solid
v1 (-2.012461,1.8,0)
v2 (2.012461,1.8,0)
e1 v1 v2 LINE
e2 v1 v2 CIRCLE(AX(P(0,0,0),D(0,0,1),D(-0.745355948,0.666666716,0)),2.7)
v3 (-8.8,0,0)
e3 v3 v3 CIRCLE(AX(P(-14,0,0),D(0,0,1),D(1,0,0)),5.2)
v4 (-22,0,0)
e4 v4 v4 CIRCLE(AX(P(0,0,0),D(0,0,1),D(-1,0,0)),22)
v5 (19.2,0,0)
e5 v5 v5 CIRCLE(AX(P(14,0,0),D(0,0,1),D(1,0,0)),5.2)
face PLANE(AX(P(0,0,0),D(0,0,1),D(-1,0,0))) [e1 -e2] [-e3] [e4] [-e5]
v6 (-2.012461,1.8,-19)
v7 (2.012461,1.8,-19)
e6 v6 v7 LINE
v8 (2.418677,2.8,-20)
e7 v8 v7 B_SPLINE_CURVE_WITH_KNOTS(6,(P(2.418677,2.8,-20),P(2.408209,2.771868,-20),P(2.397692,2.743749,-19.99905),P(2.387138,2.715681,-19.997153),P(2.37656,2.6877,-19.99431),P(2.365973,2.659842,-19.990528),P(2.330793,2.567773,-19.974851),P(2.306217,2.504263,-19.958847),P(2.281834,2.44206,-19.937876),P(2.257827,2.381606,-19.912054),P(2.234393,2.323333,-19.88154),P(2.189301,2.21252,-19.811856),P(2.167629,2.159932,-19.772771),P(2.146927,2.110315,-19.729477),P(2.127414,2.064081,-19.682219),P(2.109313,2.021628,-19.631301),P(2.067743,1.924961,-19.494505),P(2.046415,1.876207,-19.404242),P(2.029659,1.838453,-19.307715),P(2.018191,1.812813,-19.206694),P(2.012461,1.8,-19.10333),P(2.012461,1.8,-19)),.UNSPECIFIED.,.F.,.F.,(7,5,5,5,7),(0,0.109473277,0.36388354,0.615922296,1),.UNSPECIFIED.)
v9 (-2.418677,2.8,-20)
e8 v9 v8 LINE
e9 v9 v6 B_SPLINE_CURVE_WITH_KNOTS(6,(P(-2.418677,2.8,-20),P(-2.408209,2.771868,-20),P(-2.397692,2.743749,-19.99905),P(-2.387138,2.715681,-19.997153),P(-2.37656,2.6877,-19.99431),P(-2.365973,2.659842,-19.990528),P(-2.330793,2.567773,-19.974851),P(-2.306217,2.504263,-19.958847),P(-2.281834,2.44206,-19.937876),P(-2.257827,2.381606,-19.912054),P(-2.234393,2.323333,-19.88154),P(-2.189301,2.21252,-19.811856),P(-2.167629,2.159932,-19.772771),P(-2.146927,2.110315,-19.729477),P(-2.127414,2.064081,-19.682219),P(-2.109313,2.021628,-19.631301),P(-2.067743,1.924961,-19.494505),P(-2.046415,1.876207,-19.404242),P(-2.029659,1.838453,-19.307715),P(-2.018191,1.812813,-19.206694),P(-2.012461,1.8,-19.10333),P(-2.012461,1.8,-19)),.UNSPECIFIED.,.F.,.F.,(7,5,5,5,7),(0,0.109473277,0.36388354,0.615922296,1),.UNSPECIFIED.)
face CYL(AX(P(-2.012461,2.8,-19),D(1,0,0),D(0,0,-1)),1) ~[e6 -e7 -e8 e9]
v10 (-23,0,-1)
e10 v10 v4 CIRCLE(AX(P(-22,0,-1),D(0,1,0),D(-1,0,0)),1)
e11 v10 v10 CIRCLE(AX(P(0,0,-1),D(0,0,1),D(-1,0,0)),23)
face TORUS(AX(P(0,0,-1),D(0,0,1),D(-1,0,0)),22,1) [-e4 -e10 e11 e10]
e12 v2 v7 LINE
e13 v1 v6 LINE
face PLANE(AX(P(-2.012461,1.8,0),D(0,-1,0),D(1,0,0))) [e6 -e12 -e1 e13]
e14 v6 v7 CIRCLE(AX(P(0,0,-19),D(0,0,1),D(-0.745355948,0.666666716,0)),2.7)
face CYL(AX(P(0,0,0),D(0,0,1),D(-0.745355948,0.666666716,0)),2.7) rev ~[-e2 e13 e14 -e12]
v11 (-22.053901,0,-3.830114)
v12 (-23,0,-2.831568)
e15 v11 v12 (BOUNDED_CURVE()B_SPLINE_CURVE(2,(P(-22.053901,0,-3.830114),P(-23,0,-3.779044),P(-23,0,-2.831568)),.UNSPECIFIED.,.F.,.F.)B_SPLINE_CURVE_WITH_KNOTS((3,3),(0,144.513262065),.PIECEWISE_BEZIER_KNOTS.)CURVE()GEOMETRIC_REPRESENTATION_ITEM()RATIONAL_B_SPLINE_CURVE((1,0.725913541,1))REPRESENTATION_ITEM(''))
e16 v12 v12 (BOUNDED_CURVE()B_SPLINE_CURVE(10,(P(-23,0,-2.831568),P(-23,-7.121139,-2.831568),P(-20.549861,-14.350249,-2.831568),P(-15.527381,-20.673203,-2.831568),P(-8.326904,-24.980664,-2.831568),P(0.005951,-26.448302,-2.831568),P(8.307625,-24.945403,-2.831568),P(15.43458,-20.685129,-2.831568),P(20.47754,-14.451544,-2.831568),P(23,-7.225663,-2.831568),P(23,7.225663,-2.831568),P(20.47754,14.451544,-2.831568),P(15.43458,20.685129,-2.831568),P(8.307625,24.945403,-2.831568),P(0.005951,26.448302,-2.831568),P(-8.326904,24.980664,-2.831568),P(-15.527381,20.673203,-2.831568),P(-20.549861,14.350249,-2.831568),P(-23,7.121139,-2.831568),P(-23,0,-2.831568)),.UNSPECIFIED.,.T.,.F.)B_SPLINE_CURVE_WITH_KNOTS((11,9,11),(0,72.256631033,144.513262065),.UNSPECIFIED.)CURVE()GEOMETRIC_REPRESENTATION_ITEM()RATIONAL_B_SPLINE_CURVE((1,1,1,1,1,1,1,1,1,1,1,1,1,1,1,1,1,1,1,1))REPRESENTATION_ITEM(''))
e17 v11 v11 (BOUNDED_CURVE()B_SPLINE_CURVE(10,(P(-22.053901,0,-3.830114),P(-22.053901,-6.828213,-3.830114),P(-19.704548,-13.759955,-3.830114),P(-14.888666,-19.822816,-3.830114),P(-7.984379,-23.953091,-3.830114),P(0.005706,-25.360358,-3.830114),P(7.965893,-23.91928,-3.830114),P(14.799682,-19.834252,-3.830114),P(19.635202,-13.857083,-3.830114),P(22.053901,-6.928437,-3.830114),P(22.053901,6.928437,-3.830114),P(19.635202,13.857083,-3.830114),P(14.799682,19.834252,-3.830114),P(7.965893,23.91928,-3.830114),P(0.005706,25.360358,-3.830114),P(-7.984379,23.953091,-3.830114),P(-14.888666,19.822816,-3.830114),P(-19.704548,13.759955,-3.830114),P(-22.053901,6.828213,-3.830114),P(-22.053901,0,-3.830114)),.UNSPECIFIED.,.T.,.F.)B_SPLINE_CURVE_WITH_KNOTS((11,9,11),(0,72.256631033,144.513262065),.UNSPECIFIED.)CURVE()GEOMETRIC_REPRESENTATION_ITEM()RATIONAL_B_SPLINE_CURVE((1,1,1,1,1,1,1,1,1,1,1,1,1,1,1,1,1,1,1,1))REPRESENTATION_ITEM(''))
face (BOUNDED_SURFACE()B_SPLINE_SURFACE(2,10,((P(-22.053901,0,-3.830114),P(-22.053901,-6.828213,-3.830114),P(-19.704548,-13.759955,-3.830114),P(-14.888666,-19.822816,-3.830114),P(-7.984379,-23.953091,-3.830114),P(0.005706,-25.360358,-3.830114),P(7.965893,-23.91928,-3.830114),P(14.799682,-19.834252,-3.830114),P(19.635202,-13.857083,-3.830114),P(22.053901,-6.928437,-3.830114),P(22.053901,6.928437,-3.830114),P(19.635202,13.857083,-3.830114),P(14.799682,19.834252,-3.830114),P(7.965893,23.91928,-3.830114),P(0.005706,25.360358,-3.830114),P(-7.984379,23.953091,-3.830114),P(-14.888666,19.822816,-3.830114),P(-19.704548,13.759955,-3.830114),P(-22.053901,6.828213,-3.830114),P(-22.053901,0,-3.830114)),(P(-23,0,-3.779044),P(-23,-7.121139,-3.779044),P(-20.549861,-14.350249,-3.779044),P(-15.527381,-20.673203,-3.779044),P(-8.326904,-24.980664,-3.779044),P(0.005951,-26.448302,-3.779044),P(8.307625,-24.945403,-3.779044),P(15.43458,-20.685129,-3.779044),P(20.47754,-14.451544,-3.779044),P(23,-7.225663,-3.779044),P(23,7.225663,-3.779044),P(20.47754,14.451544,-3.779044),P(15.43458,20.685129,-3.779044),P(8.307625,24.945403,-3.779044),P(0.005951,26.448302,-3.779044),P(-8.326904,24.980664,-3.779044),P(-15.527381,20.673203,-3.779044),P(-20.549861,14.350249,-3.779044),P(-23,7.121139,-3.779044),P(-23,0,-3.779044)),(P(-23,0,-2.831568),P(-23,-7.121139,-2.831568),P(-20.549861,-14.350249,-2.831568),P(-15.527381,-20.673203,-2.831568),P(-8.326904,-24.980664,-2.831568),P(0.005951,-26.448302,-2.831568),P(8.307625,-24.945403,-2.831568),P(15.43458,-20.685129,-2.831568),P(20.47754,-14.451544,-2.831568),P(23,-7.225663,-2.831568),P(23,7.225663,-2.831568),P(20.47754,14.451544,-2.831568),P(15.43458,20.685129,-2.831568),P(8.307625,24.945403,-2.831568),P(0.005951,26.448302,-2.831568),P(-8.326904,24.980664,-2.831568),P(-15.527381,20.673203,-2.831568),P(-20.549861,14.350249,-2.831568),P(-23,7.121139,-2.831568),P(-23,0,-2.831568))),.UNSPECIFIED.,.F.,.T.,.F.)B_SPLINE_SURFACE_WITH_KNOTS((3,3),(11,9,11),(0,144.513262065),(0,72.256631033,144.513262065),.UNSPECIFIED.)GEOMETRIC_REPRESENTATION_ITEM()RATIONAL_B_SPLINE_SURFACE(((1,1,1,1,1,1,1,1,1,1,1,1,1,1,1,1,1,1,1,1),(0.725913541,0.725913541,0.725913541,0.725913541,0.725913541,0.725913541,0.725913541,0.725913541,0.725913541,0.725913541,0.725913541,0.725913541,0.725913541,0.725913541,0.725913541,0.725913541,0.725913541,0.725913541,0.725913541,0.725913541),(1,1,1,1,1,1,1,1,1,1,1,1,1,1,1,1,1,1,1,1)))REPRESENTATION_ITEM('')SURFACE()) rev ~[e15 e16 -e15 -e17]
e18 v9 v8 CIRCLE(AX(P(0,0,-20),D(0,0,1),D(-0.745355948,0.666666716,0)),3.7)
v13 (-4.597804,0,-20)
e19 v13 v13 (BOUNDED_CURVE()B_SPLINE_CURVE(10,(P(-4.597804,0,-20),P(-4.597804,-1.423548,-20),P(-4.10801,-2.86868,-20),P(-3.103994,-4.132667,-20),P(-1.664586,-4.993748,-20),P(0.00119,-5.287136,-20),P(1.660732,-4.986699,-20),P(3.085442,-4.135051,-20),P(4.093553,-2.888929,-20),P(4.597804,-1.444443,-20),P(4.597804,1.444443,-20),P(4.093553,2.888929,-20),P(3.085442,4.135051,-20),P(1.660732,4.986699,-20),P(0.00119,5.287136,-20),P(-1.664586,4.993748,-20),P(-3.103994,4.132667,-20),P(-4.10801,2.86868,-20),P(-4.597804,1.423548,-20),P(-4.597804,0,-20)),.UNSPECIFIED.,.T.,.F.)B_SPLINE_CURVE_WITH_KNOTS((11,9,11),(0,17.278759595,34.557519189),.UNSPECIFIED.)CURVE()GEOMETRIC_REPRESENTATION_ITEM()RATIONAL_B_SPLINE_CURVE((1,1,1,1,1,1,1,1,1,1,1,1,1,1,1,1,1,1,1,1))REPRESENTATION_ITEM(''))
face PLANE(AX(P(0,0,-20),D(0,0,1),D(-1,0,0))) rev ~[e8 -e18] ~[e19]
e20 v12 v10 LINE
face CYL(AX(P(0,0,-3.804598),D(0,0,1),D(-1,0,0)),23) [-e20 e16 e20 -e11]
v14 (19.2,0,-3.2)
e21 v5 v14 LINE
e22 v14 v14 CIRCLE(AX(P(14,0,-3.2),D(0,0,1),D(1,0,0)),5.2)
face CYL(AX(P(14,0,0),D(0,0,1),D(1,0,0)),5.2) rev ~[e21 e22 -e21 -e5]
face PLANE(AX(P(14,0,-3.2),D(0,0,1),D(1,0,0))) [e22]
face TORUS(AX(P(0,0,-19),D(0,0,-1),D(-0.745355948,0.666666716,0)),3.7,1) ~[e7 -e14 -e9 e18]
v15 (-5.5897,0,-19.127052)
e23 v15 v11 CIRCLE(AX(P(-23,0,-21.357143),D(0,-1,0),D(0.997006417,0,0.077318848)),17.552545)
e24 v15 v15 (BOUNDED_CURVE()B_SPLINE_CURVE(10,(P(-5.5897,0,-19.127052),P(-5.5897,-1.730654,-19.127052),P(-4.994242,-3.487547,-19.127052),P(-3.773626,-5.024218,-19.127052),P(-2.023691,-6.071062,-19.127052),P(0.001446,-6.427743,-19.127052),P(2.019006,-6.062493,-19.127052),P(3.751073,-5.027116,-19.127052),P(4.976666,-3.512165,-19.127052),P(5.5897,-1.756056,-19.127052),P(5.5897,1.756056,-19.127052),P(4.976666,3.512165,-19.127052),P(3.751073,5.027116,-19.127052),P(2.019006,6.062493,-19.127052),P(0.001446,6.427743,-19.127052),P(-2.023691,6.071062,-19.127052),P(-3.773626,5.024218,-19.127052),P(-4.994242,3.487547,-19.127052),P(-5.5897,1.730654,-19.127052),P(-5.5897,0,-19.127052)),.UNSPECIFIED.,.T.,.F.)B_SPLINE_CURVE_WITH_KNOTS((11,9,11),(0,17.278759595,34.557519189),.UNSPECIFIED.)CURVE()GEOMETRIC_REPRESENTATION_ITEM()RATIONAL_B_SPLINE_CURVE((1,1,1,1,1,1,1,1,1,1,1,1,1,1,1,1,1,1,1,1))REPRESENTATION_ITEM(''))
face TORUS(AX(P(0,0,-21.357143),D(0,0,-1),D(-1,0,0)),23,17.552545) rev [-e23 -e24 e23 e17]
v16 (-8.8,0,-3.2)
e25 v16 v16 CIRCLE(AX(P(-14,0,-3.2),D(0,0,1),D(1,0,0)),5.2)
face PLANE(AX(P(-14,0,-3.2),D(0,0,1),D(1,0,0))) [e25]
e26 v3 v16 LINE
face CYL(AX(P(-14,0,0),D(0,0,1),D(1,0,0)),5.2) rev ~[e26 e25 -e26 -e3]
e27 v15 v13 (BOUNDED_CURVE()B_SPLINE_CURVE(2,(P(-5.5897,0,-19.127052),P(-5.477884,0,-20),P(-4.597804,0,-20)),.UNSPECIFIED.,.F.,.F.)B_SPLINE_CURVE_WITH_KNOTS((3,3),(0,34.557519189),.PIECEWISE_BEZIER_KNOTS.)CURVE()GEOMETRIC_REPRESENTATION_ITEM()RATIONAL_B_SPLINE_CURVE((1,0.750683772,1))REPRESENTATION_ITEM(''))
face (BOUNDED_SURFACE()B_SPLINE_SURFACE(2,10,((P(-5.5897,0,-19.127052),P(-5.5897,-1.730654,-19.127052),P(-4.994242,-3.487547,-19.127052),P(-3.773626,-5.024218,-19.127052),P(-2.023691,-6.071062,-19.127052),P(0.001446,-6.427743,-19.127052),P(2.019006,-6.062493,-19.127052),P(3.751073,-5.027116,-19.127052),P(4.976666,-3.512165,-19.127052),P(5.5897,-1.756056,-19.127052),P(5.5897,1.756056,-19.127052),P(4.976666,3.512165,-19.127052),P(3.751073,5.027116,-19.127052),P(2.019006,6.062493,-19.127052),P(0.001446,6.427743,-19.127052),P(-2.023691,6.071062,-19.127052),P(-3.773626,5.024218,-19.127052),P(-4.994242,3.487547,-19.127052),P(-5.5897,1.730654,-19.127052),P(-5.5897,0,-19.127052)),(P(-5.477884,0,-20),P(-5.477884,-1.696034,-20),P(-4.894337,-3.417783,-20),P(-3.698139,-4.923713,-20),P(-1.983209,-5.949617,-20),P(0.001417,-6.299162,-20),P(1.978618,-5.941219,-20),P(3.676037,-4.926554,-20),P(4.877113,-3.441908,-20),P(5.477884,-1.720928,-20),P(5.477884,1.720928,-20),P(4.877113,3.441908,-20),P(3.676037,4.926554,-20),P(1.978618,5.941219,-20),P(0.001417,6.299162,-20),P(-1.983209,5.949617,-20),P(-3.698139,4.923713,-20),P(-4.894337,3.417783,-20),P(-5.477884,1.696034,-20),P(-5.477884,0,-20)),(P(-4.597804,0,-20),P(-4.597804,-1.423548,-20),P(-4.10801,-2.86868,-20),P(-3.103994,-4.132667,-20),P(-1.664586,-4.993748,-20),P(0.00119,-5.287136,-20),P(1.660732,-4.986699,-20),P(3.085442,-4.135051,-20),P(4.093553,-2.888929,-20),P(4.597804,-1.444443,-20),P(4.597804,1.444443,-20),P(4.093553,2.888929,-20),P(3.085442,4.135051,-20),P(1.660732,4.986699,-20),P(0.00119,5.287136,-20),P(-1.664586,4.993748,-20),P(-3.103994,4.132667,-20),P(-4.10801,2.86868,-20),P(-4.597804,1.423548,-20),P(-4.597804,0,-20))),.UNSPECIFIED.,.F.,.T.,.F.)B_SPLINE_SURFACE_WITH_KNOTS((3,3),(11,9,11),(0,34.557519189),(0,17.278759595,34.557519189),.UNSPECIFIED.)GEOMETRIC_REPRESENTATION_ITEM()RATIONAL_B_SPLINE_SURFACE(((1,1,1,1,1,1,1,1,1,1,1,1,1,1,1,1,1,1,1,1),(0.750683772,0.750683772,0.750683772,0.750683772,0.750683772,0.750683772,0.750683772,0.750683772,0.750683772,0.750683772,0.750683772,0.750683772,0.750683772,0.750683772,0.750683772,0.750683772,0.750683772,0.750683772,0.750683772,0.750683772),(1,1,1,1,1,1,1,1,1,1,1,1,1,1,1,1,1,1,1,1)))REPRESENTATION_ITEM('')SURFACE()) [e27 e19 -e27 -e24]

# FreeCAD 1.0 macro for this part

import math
import FreeCAD as App
import Part
import Sketcher
from FreeCAD import Vector


def edges_at(feature, points):
    """Names of the edges that pass closest to the given points."""
    edges = feature.Shape.Edges
    near = lambda p: min(range(len(edges)), key=lambda i: edges[i].distToShape(Part.Vertex(*p))[0])
    return sorted({f"Edge{near(p) + 1}" for p in points})

doc = App.newDocument("Part")
body = doc.addObject("PartDesign::Body", "Body")

sketch1 = body.newObject("Sketcher::SketchObject", "Sketch")
sketch1.AttachmentSupport = (doc.getObject("XZ_Plane"), [""])
sketch1.MapMode = "FlatFace"
sketch1.addGeometry(Part.ArcOfCircle(Part.Circle(Vector(-23, -21.4, 0), Vector(0, 0, 1), 17.6), math.radians(4), math.radians(90)), False)
sketch1.addGeometry(Part.LineSegment(Vector(-5.5, -20, 0), Vector(0, -20, 0)), False)
sketch1.addGeometry(Part.LineSegment(Vector(0, -20, 0), Vector(0, 0, 0)), False)
sketch1.addGeometry(Part.LineSegment(Vector(0, 0, 0), Vector(-23, 0, 0)), False)
sketch1.addGeometry(Part.LineSegment(Vector(-23, 0, 0), Vector(-23, -3.8, 0)), False)
sketch1.addConstraint(Sketcher.Constraint("Coincident", 0, 1, 1, 1))
sketch1.addConstraint(Sketcher.Constraint("Coincident", 1, 2, 2, 1))
sketch1.addConstraint(Sketcher.Constraint("Coincident", 2, 2, 3, 1))
sketch1.addConstraint(Sketcher.Constraint("Coincident", 3, 2, 4, 1))
sketch1.addConstraint(Sketcher.Constraint("Coincident", 4, 2, 0, 2))
sketch1.addConstraint(Sketcher.Constraint("Horizontal", 1))
sketch1.addConstraint(Sketcher.Constraint("Vertical", 2))
sketch1.addConstraint(Sketcher.Constraint("Horizontal", 3))
sketch1.addConstraint(Sketcher.Constraint("Vertical", 4))
sketch1.addConstraint(Sketcher.Constraint("Coincident", 2, 2, -1, 1))
sketch1.addConstraint(Sketcher.Constraint("Vertical", 0, 3, 3, 2))
sketch1.addConstraint(Sketcher.Constraint("DistanceX", 3, 2, 3, 1, 23.0))
sketch1.addConstraint(Sketcher.Constraint("DistanceY", 2, 1, 2, 2, 20.0))
sketch1.addConstraint(Sketcher.Constraint("DistanceX", 1, 1, 1, 2, 5.5))
sketch1.addConstraint(Sketcher.Constraint("Radius", 0, 17.552545))
revolution = body.newObject("PartDesign::Revolution", "Revolution")
revolution.Profile = sketch1
revolution.ReferenceAxis = (sketch1, ["V_Axis"])
revolution.Angle = 360

sketch2 = body.newObject("Sketcher::SketchObject", "Sketch001")
sketch2.AttachmentSupport = (doc.getObject("XY_Plane"), [""])
sketch2.MapMode = "FlatFace"
sketch2.addGeometry(Part.ArcOfCircle(Part.Circle(Vector(0, 0, 0), Vector(0, 0, 1), 2.7), math.radians(138), math.radians(402)), False)
sketch2.addGeometry(Part.LineSegment(Vector(2, 1.8, 0), Vector(-2, 1.8, 0)), False)
sketch2.addConstraint(Sketcher.Constraint("Coincident", 0, 1, 1, 2))
sketch2.addConstraint(Sketcher.Constraint("Coincident", 1, 1, 0, 2))
sketch2.addConstraint(Sketcher.Constraint("Horizontal", 1))
sketch2.addConstraint(Sketcher.Constraint("Coincident", 0, 3, -1, 1))
sketch2.addConstraint(Sketcher.Constraint("Radius", 0, 2.7))
sketch2.addConstraint(Sketcher.Constraint("DistanceY", -1, 1, 0, 1, 1.8))
pocket1 = body.newObject("PartDesign::Pocket", "Pocket")
pocket1.Profile = sketch2
pocket1.Length = 100

sketch3 = body.newObject("Sketcher::SketchObject", "Sketch002")
sketch3.AttachmentSupport = (doc.getObject("XY_Plane"), [""])
sketch3.MapMode = "FlatFace"
sketch3.addGeometry(Part.Circle(Vector(-14, 0, 0), Vector(0, 0, 1), 5), False)
sketch3.addGeometry(Part.Circle(Vector(14, 0, 0), Vector(0, 0, 1), 5), False)
sketch3.addConstraint(Sketcher.Constraint("Equal", 0, 1))
sketch3.addConstraint(Sketcher.Constraint("Symmetric", 0, 3, 1, 3, -1, 1))
sketch3.addConstraint(Sketcher.Constraint("PointOnObject", 0, 3, -1))
sketch3.addConstraint(Sketcher.Constraint("Diameter", 0, 10.4))
sketch3.addConstraint(Sketcher.Constraint("DistanceX", 0, 3, -1, 1, 14.0))
pocket2 = body.newObject("PartDesign::Pocket", "Pocket001")
pocket2.Profile = sketch3
pocket2.Length = 3.2
doc.recompute()

fillet = body.newObject("PartDesign::Fillet", "Fillet")
fillet.Base = (pocket2, edges_at(pocket2, [
    (5.5, 0, -20),
    (23, 0, -3.805),
    (23, 0, 0),
    (0, -2.7, -20),
    (0, 1.8, -20),
]))
fillet.Radius = 1

doc.recompute()
